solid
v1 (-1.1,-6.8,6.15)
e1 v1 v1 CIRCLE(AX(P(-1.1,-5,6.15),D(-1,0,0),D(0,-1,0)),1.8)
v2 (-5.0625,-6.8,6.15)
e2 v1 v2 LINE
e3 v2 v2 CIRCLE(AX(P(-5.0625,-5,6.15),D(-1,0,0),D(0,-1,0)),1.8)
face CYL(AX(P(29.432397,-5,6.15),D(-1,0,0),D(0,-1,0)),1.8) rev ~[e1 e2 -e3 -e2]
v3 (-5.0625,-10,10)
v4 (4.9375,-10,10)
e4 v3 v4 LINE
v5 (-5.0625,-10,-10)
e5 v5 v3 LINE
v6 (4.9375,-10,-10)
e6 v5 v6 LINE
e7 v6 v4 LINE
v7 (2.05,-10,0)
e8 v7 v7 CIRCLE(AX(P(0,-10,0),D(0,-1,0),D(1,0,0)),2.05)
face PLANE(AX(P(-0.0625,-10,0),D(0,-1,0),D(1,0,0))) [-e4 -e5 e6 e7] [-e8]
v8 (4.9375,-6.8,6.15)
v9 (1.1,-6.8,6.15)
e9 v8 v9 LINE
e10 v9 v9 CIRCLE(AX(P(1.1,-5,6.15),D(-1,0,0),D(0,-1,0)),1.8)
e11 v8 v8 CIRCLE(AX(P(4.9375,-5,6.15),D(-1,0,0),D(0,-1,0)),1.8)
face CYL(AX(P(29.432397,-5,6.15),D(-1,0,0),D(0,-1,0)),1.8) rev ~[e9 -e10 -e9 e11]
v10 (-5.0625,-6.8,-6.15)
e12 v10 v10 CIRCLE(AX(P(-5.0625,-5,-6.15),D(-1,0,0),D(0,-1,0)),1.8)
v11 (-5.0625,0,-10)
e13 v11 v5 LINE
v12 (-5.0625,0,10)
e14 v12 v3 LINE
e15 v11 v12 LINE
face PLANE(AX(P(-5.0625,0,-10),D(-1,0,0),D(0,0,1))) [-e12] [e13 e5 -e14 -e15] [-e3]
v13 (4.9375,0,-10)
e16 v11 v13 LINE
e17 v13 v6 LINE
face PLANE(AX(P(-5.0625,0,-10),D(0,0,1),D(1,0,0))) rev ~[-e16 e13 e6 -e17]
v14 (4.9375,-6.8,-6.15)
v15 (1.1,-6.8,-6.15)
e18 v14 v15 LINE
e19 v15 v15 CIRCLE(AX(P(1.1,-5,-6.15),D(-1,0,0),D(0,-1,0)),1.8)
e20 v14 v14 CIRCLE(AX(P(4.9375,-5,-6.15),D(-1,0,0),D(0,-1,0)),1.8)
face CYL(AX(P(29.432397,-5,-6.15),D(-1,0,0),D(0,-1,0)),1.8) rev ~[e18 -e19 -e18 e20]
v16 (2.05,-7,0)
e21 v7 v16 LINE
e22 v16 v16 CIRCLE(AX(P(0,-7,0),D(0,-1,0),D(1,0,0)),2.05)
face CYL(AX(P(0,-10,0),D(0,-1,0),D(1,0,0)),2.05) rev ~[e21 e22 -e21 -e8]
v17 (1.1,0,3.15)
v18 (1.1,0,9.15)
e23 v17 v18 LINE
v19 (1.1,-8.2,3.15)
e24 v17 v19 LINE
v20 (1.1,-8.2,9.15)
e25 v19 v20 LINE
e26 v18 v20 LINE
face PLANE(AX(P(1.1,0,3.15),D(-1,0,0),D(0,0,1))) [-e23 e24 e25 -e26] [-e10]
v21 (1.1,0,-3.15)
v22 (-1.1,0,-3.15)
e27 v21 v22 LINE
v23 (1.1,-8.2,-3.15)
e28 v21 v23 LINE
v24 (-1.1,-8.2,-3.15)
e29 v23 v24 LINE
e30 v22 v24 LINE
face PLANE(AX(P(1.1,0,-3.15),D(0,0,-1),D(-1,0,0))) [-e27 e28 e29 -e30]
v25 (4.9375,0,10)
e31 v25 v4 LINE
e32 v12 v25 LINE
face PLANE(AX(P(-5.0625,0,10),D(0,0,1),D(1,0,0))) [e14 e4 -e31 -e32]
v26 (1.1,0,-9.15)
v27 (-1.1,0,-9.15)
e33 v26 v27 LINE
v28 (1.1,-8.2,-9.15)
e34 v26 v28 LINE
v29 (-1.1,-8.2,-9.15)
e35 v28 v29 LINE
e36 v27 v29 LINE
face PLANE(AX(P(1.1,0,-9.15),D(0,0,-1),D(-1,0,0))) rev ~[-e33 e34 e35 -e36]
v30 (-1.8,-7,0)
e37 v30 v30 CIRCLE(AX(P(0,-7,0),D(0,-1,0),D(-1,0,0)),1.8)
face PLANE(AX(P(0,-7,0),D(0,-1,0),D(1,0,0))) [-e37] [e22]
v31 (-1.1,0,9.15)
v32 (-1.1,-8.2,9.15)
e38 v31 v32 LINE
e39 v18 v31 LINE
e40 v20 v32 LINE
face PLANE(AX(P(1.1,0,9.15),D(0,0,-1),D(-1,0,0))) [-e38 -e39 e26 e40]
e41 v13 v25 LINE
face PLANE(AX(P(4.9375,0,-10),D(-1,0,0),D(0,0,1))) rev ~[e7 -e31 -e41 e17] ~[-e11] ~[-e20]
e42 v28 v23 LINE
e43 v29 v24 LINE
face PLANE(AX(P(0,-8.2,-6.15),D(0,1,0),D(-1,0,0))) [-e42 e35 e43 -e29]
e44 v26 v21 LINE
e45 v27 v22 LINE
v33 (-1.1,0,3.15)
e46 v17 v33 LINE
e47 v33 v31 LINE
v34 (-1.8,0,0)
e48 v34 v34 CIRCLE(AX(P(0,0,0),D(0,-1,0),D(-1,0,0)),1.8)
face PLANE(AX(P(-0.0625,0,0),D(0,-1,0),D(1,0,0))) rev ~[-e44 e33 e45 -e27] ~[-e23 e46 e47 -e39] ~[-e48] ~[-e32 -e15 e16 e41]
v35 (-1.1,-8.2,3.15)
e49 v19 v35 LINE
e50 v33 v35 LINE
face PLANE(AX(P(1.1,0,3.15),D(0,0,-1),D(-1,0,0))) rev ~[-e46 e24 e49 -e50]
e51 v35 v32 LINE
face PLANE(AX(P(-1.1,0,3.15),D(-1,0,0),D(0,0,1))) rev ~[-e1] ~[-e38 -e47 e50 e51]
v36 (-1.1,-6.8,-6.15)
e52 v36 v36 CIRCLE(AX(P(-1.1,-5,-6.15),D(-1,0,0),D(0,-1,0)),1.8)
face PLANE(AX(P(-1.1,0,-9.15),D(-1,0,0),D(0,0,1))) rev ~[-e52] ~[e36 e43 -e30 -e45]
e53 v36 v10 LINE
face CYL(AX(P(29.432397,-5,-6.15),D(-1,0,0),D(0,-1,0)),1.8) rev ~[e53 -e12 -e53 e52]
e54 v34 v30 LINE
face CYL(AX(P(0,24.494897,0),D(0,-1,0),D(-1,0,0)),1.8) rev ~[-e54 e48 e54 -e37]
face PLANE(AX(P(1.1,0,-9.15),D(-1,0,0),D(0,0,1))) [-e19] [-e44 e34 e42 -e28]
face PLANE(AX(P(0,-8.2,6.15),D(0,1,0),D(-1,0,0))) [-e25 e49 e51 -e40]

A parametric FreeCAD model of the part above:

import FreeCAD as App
import Part
import Sketcher
from FreeCAD import Vector

doc = App.newDocument("Part")
body = doc.addObject("PartDesign::Body", "Body")

sketch1 = body.newObject("Sketcher::SketchObject", "Sketch")
sketch1.AttachmentSupport = (doc.getObject("XZ_Plane"), [""])
sketch1.MapMode = "FlatFace"
sketch1.addGeometry([
    Part.LineSegment(Vector(-5.0625, 10, 0), Vector(-5.0625, -10, 0)),
    Part.LineSegment(Vector(-5.0625, -10, 0), Vector(4.9375, -10, 0)),
    Part.LineSegment(Vector(4.9375, -10, 0), Vector(4.9375, 10, 0)),
    Part.LineSegment(Vector(4.9375, 10, 0), Vector(-5.0625, 10, 0)),
], False)
sketch1.addConstraint([
    Sketcher.Constraint("Coincident", 0, 2, 1, 1),
    Sketcher.Constraint("Coincident", 1, 2, 2, 1),
    Sketcher.Constraint("Coincident", 2, 2, 3, 1),
    Sketcher.Constraint("Coincident", 3, 2, 0, 1),
    Sketcher.Constraint("Vertical", 0),
    Sketcher.Constraint("Horizontal", 1),
    Sketcher.Constraint("Vertical", 2),
    Sketcher.Constraint("Horizontal", 3),
    Sketcher.Constraint("DistanceX", 1, 1, 1, 2, 10.0),
    Sketcher.Constraint("DistanceY", 0, 2, 0, 1, 20.0),
    Sketcher.Constraint("DistanceY", 0, 2, -1, 1, 10.0),
    Sketcher.Constraint("DistanceX", 0, 2, -1, 1, 5.0625),
])
pad1 = body.newObject("PartDesign::Pad", "Pad")
pad1.Profile = sketch1
pad1.Length = 10

sketch2 = body.newObject("Sketcher::SketchObject", "Sketch001")
sketch2.AttachmentSupport = (doc.getObject("XZ_Plane"), [""])
sketch2.MapMode = "FlatFace"
sketch2.addGeometry([
    Part.LineSegment(Vector(1.1, 9.15, 0), Vector(1.1, 3.15, 0)),
    Part.LineSegment(Vector(1.1, 3.15, 0), Vector(-1.1, 3.15, 0)),
    Part.LineSegment(Vector(-1.1, 3.15, 0), Vector(-1.1, 9.15, 0)),
    Part.LineSegment(Vector(-1.1, 9.15, 0), Vector(1.1, 9.15, 0)),
    Part.LineSegment(Vector(1.1, -3.15, 0), Vector(1.1, -9.15, 0)),
    Part.LineSegment(Vector(1.1, -9.15, 0), Vector(-1.1, -9.15, 0)),
    Part.LineSegment(Vector(-1.1, -9.15, 0), Vector(-1.1, -3.15, 0)),
    Part.LineSegment(Vector(-1.1, -3.15, 0), Vector(1.1, -3.15, 0)),
], False)
sketch2.addConstraint([
    Sketcher.Constraint("Coincident", 0, 2, 1, 1),
    Sketcher.Constraint("Coincident", 1, 2, 2, 1),
    Sketcher.Constraint("Coincident", 2, 2, 3, 1),
    Sketcher.Constraint("Coincident", 3, 2, 0, 1),
    Sketcher.Constraint("Coincident", 4, 2, 5, 1),
    Sketcher.Constraint("Coincident", 5, 2, 6, 1),
    Sketcher.Constraint("Coincident", 6, 2, 7, 1),
    Sketcher.Constraint("Coincident", 7, 2, 4, 1),
    Sketcher.Constraint("Vertical", 0),
    Sketcher.Constraint("Horizontal", 1),
    Sketcher.Constraint("Vertical", 2),
    Sketcher.Constraint("Horizontal", 3),
    Sketcher.Constraint("Vertical", 4),
    Sketcher.Constraint("Horizontal", 5),
    Sketcher.Constraint("Vertical", 6),
    Sketcher.Constraint("Horizontal", 7),
    Sketcher.Constraint("Symmetric", 2, 2, 4, 2, -1, 1),
    Sketcher.Constraint("Symmetric", 0, 2, 6, 2, -1, 1),
    Sketcher.Constraint("Vertical", 3, 2, 4, 2),
    Sketcher.Constraint("DistanceY", 0, 2, 0, 1, 6.0),
    Sketcher.Constraint("DistanceX", 1, 2, 1, 1, 2.2),
    Sketcher.Constraint("DistanceY", 4, 2, 0, 2, 12.3),
])
pocket1 = body.newObject("PartDesign::Pocket", "Pocket")
pocket1.Profile = sketch2
pocket1.Length = 8.2
pocket1.Reversed = True

sketch3 = body.newObject("Sketcher::SketchObject", "Sketch002")
sketch3.AttachmentSupport = (doc.getObject("XZ_Plane"), [""])
sketch3.MapMode = "FlatFace"
sketch3.AttachmentOffset = App.Placement(Vector(0, 0, 10), App.Rotation())
sketch3.addGeometry(Part.Circle(Vector(0, 0, 0), Vector(0, 0, 1), 2.05), False)
sketch3.addConstraint([
    Sketcher.Constraint("Coincident", 0, 3, -1, 1),
    Sketcher.Constraint("Diameter", 0, 4.1),
])
pocket2 = body.newObject("PartDesign::Pocket", "Pocket001")
pocket2.Profile = sketch3
pocket2.Length = 3

sketch4 = body.newObject("Sketcher::SketchObject", "Sketch003")
sketch4.AttachmentSupport = (doc.getObject("XZ_Plane"), [""])
sketch4.MapMode = "FlatFace"
sketch4.addGeometry(Part.Circle(Vector(0, 0, 0), Vector(0, 0, 1), 1.8), False)
sketch4.addConstraint([
    Sketcher.Constraint("Coincident", 0, 3, -1, 1),
    Sketcher.Constraint("Diameter", 0, 3.6),
])
doc.recompute()
hole = body.newObject("PartDesign::Hole", "Hole")
hole.Profile = sketch4
hole.ThreadType = "None"
hole.Diameter = 3.6
hole.DepthType = "ThroughAll"
hole.Reversed = True

sketch5 = body.newObject("Sketcher::SketchObject", "Sketch004")
sketch5.AttachmentSupport = (doc.getObject("YZ_Plane"), [""])
sketch5.MapMode = "FlatFace"
sketch5.AttachmentOffset = App.Placement(Vector(0, 0, 4.9375), App.Rotation())
sketch5.addGeometry([
    Part.Circle(Vector(-5, -6.15, 0), Vector(0, 0, 1), 1.8),
    Part.Circle(Vector(-5, 6.15, 0), Vector(0, 0, 1), 1.8),
], False)
sketch5.addConstraint([
    Sketcher.Constraint("Equal", 0, 1),
    Sketcher.Constraint("Symmetric", 0, 3, 1, 3, -1),
    Sketcher.Constraint("Diameter", 0, 3.6),
    Sketcher.Constraint("DistanceX", 0, 3, -1, 1, 5.0),
    Sketcher.Constraint("DistanceY", 0, 3, 1, 3, 12.3),
])
doc.recompute()
hole2 = body.newObject("PartDesign::Hole", "Hole001")
hole2.Profile = sketch5
hole2.ThreadType = "None"
hole2.Diameter = 3.6
hole2.DepthType = "ThroughAll"

doc.recompute()
